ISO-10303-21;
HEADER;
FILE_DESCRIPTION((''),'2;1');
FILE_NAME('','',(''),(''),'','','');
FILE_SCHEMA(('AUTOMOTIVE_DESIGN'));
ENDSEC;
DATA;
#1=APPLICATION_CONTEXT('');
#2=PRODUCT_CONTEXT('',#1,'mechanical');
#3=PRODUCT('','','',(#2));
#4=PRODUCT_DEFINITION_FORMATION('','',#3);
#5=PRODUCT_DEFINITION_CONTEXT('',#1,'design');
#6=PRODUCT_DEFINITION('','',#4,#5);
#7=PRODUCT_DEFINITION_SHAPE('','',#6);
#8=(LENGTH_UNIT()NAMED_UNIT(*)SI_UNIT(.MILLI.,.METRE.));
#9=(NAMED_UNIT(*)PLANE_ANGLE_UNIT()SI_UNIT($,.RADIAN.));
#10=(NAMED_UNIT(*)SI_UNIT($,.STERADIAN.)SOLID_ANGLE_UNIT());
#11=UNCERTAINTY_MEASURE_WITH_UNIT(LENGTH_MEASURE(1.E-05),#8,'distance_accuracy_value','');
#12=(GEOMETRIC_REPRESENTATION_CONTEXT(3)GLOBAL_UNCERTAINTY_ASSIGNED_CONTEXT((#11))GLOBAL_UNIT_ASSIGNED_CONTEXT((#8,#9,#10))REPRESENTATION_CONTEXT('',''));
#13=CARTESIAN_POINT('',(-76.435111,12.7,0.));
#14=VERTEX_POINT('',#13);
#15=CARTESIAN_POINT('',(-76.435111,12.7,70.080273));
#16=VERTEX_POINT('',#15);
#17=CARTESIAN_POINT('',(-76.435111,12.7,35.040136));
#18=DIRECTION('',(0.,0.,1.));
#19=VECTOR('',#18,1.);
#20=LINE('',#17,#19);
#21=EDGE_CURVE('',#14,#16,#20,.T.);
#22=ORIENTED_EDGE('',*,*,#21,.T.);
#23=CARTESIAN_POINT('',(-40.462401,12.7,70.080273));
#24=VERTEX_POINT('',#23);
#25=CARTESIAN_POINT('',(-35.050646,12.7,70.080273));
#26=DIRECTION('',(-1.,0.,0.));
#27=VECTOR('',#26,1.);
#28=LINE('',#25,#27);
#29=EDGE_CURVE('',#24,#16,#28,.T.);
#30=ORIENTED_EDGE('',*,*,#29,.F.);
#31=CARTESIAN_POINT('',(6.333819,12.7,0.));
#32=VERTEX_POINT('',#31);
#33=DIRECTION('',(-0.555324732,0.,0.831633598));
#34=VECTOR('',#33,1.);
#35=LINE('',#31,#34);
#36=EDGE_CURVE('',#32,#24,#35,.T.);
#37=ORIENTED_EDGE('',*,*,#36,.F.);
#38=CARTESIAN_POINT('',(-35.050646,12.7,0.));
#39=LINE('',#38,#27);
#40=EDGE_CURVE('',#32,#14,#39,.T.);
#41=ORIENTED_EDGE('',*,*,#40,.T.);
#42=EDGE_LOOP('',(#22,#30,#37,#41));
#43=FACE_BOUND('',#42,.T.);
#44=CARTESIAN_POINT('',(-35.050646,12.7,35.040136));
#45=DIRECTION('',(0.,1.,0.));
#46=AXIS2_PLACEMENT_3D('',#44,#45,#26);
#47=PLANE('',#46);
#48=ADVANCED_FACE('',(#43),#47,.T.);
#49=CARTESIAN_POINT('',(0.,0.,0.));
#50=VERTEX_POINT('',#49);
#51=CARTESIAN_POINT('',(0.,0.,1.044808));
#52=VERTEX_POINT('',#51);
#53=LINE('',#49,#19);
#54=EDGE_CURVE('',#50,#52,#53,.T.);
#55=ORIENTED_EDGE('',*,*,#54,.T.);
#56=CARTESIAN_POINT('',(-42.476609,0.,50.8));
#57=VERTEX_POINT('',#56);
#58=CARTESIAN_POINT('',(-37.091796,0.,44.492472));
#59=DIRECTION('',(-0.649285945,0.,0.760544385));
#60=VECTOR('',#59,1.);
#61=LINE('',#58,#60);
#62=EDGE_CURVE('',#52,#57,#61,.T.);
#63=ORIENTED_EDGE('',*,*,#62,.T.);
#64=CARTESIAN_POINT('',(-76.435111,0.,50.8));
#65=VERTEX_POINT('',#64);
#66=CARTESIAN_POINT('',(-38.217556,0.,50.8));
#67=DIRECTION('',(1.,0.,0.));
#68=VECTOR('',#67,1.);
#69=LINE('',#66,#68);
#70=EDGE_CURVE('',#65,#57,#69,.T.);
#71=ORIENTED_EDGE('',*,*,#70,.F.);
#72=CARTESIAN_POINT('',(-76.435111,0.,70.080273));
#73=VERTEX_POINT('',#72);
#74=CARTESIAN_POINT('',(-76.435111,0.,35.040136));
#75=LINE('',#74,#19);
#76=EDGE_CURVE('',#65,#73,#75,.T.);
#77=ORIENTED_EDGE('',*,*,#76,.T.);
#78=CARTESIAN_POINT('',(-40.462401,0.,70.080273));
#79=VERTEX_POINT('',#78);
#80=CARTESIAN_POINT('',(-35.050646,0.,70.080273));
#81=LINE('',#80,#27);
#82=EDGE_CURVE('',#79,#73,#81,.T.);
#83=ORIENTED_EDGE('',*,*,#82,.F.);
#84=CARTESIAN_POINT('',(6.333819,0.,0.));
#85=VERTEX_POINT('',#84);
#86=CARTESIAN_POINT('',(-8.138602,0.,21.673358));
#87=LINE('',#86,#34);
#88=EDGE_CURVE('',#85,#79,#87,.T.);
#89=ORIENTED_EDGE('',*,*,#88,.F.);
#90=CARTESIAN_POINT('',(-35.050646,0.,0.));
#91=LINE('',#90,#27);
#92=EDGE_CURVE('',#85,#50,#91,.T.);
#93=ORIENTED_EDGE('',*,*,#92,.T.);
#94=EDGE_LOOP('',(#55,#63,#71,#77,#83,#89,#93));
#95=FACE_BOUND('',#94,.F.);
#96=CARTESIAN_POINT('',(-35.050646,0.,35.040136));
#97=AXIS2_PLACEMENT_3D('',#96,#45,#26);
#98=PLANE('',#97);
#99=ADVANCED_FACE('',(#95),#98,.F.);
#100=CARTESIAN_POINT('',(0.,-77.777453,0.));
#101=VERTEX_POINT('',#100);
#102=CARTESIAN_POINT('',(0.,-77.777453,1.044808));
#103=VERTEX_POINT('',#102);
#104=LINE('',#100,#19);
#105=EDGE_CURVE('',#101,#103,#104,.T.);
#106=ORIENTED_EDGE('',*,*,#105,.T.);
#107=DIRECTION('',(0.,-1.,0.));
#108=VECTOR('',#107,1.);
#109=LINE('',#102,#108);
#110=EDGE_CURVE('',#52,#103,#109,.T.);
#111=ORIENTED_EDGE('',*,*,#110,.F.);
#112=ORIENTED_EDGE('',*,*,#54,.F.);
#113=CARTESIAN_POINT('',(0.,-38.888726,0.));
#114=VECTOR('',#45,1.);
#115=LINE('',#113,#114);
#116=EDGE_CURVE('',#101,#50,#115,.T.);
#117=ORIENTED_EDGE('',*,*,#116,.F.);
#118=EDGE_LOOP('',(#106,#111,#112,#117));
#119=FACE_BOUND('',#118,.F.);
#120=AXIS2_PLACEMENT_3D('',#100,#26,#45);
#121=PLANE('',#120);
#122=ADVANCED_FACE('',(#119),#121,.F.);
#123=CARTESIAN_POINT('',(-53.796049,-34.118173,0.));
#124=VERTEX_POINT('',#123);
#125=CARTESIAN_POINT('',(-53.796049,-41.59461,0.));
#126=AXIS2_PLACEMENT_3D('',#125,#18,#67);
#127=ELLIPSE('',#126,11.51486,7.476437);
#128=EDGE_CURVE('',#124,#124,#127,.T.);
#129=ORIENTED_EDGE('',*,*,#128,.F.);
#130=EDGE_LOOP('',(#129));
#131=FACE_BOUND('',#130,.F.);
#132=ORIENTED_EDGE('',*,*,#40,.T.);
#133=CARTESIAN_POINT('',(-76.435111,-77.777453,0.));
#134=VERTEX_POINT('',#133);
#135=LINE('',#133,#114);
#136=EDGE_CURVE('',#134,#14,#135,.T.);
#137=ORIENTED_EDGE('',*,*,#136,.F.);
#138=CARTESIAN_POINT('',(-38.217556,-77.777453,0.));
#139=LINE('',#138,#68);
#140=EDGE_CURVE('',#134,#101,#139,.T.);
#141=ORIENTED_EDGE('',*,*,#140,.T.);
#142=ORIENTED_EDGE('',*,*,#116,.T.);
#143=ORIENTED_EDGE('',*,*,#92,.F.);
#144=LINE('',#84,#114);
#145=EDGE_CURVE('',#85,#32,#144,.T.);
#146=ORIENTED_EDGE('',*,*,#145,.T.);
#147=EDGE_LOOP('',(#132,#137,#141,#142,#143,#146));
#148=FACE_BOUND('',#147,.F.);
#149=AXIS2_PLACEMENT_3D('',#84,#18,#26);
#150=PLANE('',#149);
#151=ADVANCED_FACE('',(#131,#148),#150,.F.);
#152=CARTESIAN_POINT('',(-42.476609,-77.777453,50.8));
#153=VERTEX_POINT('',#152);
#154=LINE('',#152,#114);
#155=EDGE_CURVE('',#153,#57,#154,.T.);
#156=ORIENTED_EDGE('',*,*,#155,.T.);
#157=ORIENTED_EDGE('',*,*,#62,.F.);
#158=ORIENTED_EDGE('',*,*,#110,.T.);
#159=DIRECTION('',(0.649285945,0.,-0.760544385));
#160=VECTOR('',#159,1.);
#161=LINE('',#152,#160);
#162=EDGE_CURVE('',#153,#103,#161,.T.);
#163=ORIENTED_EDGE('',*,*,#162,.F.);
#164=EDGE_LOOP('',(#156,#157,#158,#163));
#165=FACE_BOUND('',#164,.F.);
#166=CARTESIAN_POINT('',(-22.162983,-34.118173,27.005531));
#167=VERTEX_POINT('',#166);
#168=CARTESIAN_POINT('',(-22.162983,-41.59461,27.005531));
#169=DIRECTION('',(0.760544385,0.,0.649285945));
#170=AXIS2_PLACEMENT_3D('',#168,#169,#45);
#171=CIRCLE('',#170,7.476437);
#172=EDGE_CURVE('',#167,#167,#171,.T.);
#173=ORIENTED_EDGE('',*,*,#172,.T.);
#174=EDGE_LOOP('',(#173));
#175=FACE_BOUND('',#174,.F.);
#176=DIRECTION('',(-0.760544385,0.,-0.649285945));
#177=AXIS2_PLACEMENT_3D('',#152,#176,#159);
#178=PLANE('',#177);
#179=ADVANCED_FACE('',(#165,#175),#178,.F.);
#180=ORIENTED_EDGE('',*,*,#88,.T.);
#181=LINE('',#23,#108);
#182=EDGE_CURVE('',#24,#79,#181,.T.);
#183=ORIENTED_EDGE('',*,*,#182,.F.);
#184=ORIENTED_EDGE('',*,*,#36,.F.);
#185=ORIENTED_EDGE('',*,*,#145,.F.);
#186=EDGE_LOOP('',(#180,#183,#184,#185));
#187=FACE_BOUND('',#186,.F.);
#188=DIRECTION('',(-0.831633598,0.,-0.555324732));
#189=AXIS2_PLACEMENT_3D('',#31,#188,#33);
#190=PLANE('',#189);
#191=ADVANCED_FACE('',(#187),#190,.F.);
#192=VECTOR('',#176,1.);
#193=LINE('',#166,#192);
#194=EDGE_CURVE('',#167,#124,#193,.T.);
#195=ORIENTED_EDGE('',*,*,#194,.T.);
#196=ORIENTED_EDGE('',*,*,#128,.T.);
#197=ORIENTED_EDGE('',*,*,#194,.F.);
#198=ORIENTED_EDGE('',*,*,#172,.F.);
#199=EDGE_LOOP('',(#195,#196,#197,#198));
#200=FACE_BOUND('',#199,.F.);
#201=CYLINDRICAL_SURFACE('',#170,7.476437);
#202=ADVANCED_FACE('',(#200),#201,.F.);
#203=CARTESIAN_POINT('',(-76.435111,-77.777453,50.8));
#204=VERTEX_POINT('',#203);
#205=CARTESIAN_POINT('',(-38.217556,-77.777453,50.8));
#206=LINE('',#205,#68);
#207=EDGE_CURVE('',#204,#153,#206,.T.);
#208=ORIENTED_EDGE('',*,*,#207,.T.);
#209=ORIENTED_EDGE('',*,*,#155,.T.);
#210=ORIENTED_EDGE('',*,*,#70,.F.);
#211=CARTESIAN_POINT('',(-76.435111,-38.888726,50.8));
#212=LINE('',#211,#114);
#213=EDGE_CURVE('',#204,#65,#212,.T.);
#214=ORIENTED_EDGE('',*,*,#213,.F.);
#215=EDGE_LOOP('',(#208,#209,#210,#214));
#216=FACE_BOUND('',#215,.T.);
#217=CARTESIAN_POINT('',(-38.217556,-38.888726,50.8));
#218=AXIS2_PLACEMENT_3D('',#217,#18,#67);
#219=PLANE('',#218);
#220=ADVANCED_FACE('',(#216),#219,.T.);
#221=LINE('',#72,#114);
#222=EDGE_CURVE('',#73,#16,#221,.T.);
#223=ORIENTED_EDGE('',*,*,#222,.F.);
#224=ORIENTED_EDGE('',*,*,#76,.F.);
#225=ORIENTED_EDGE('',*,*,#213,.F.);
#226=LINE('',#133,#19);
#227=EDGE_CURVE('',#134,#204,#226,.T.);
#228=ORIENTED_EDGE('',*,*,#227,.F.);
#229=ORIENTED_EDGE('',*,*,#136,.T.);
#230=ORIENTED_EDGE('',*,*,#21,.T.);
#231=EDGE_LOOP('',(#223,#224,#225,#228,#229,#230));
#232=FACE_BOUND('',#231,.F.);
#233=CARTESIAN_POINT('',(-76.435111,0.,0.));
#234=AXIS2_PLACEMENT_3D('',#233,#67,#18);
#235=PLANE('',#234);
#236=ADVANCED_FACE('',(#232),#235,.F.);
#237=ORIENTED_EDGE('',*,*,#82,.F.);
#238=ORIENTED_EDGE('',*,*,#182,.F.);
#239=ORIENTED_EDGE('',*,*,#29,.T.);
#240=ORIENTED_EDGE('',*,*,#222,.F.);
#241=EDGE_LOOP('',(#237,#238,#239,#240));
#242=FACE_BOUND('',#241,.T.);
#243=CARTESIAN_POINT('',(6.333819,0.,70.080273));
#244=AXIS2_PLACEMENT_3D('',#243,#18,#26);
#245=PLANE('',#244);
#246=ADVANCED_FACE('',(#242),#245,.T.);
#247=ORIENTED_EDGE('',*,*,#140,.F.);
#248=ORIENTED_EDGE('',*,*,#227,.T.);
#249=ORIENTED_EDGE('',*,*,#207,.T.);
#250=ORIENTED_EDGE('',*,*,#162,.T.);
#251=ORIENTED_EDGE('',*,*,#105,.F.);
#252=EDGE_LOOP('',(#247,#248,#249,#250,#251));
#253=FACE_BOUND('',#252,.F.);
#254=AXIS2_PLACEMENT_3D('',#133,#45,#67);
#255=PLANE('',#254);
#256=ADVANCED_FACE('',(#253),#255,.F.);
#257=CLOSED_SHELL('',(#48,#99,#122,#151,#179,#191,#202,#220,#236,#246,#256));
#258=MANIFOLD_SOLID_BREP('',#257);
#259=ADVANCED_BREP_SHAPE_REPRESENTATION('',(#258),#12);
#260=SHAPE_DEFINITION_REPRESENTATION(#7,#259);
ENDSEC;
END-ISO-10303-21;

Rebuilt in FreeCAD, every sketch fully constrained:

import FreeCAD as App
import Part
import Sketcher
from FreeCAD import Vector
Q = App.Units.Quantity


def add_polygon(sketch, points):
    """Adds a closed chain of lines whose ends are joined by coincident constraints."""
    first, n = sketch.GeometryCount, len(points)
    for a, b in zip(points, points[1:] + points[:1]):
        sketch.addGeometry(Part.LineSegment(App.Vector(*a, 0), App.Vector(*b, 0)), False)
    for i in range(n):
        sketch.addConstraint(Sketcher.Constraint("Coincident", first + i, 2, first + (i + 1) % n, 1))

doc = App.newDocument("Part")
body = doc.addObject("PartDesign::Body", "Body")

# Sketch on XY plane
sketch1 = body.newObject("Sketcher::SketchObject", "Sketch")
sketch1.AttachmentSupport = (doc.getObject("XY_Plane"), [""])
sketch1.MapMode = "FlatFace"
add_polygon(sketch1, [(-76, 0), (-76, -78), (0, -78), (0, 0)])  # lines 0-3
sketch1.addConstraint(Sketcher.Constraint("Vertical", 0))
sketch1.addConstraint(Sketcher.Constraint("Horizontal", 1))
sketch1.addConstraint(Sketcher.Constraint("Vertical", 2))
sketch1.addConstraint(Sketcher.Constraint("Horizontal", 3))
sketch1.addConstraint(Sketcher.Constraint("Coincident", 2, 2, -1, 1))
sketch1.addConstraint(Sketcher.Constraint("DistanceX", 1, 1, 1, 2, 76.435111))
sketch1.addConstraint(Sketcher.Constraint("DistanceY", 0, 2, 0, 1, 77.777453))
pad1 = body.newObject("PartDesign::Pad", "Pad")
pad1.Profile = sketch1
pad1.Length = Q("2 in")

# Sketch on XZ plane
sketch2 = body.newObject("Sketcher::SketchObject", "Sketch001")
sketch2.AttachmentSupport = (doc.getObject("XZ_Plane"), [""])
sketch2.MapMode = "FlatFace"
sketch2.AttachmentOffset = App.Placement(Vector(0, 0, 77.777453), App.Rotation())
add_polygon(sketch2, [(15, -17), (15, 51), (-42, 51)])  # lines 0-2
sketch2.addConstraint(Sketcher.Constraint("Vertical", 0))
sketch2.addConstraint(Sketcher.Constraint("Horizontal", 1))
sketch2.addConstraint(Sketcher.Constraint("DistanceY", -1, 1, 0, 2, Q("2 in")))
sketch2.addConstraint(Sketcher.Constraint("DistanceX", 1, 2, 1, 1, 57.923167))
sketch2.addConstraint(Sketcher.Constraint("DistanceY", 0, 1, 0, 2, 67.848595))
sketch2.addConstraint(Sketcher.Constraint("DistanceX", 1, 2, -1, 1, 42.476609))
pocket1 = body.newObject("PartDesign::Pocket", "Pocket")
pocket1.Profile = sketch2
pocket1.Type = "ThroughAll"

# Sketch on an angled plane
sketch3 = body.newObject("Sketcher::SketchObject", "Sketch002")
sketch3.Placement = App.Placement(Vector(0.515938, 0, 0.440462), App.Rotation(Vector(0, 1, 0), Vector(-0.649285945, 0, 0.760544385), Vector(0.760544385, 0, 0.649285945), "ZXY"))
sketch3.addGeometry(Part.Circle(Vector(-42, 35, 0), Vector(0, 0, 1), 7), False)
sketch3.addConstraint(Sketcher.Constraint("Diameter", 0, 14.952873))
sketch3.addConstraint(Sketcher.Constraint("DistanceX", 0, 3, -1, 1, 41.59461))
sketch3.addConstraint(Sketcher.Constraint("DistanceY", -1, 1, 0, 3, 34.929018))
pocket2 = body.newObject("PartDesign::Pocket", "Pocket001")
pocket2.Profile = sketch3
pocket2.Type = "ThroughAll"

# Sketch on XZ plane
sketch4 = body.newObject("Sketcher::SketchObject", "Sketch003")
sketch4.AttachmentSupport = (doc.getObject("XZ_Plane"), [""])
sketch4.MapMode = "FlatFace"
add_polygon(sketch4, [(6, 70), (6, 0), (-76, 0), (-76, 70)])  # lines 0-3
sketch4.addConstraint(Sketcher.Constraint("Vertical", 0))
sketch4.addConstraint(Sketcher.Constraint("Horizontal", 1))
sketch4.addConstraint(Sketcher.Constraint("Vertical", 2))
sketch4.addConstraint(Sketcher.Constraint("Horizontal", 3))
sketch4.addConstraint(Sketcher.Constraint("PointOnObject", 0, 2, -1))
sketch4.addConstraint(Sketcher.Constraint("DistanceX", 1, 2, 1, 1, 82.768931))
sketch4.addConstraint(Sketcher.Constraint("DistanceY", 0, 2, 0, 1, 70.080273))
sketch4.addConstraint(Sketcher.Constraint("DistanceX", -1, 1, 0, 2, 6.333819))
pad2 = body.newObject("PartDesign::Pad", "Pad001")
pad2.Profile = sketch4
pad2.Length = Q("0.5 in")
pad2.Reversed = True

# Sketch on XZ plane
sketch5 = body.newObject("Sketcher::SketchObject", "Sketch004")
sketch5.AttachmentSupport = (doc.getObject("XZ_Plane"), [""])
sketch5.MapMode = "FlatFace"
sketch5.AttachmentOffset = App.Placement(Vector(0, 0, -0.5 * 25.4), App.Rotation())
add_polygon(sketch5, [(-40, 70), (6, 70), (6, 0)])  # lines 0-2
sketch5.addConstraint(Sketcher.Constraint("Horizontal", 0))
sketch5.addConstraint(Sketcher.Constraint("Vertical", 1))
sketch5.addConstraint(Sketcher.Constraint("PointOnObject", 1, 2, -1))
sketch5.addConstraint(Sketcher.Constraint("DistanceX", 0, 1, 0, 2, 46.79622))
sketch5.addConstraint(Sketcher.Constraint("DistanceX", 2, 2, -1, 1, 40.462401))
sketch5.addConstraint(Sketcher.Constraint("DistanceY", 1, 2, 1, 1, 70.080273))
pocket3 = body.newObject("PartDesign::Pocket", "Pocket002")
pocket3.Profile = sketch5
pocket3.Type = "ThroughAll"
pocket3.Reversed = True

doc.recompute()
